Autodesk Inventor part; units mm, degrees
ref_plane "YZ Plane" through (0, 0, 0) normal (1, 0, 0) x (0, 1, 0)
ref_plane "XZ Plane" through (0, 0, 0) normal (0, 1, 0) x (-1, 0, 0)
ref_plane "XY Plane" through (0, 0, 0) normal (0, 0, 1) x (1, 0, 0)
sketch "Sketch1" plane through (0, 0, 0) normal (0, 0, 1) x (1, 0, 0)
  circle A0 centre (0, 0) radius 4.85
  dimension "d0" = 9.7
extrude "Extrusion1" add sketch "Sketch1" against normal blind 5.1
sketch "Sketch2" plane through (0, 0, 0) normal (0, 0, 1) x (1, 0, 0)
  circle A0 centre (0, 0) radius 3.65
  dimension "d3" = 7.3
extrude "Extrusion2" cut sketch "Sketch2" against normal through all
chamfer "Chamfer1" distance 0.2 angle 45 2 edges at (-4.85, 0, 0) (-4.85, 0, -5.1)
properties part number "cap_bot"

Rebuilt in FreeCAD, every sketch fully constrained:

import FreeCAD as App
import Part
import Sketcher


def edges_at(feature, points):
    """Names of the edges that pass closest to the given points."""
    edges = feature.Shape.Edges
    near = lambda p: min(range(len(edges)), key=lambda i: edges[i].distToShape(Part.Vertex(*p))[0])
    return sorted({f"Edge{near(p) + 1}" for p in points})

doc = App.newDocument("Part")
body = doc.addObject("PartDesign::Body", "Body")

# Sketch on XY plane
sketch1 = body.newObject("Sketcher::SketchObject", "Sketch")
sketch1.AttachmentSupport = (doc.getObject("XY_Plane"), [""])
sketch1.MapMode = "FlatFace"
sketch1.addGeometry(Part.Circle(App.Vector(0, 0, 0), App.Vector(0, 0, 1), 4.85), False)
sketch1.addConstraint(Sketcher.Constraint("Coincident", 0, 3, -1, 1))
sketch1.addConstraint(Sketcher.Constraint("Diameter", 0, 9.7))
pad1 = body.newObject("PartDesign::Pad", "Pad")
pad1.Profile = sketch1
pad1.Length = 5.1
pad1.Reversed = True

# Sketch on XY plane
sketch2 = body.newObject("Sketcher::SketchObject", "Sketch001")
sketch2.AttachmentSupport = (doc.getObject("XY_Plane"), [""])
sketch2.MapMode = "FlatFace"
sketch2.addGeometry(Part.Circle(App.Vector(0, 0, 0), App.Vector(0, 0, 1), 3.65), False)
sketch2.addConstraint(Sketcher.Constraint("Coincident", 0, 3, -1, 1))
sketch2.addConstraint(Sketcher.Constraint("Diameter", 0, 7.3))
pocket1 = body.newObject("PartDesign::Pocket", "Pocket")
pocket1.Profile = sketch2
pocket1.Type = "ThroughAll"
doc.recompute()

chamfer = body.newObject("PartDesign::Chamfer", "Chamfer")
chamfer.Base = (pocket1, edges_at(pocket1, [(-4.85, 0, 0), (-4.85, 0, -5.1)]))
chamfer.Size = 0.2

doc.recompute()
